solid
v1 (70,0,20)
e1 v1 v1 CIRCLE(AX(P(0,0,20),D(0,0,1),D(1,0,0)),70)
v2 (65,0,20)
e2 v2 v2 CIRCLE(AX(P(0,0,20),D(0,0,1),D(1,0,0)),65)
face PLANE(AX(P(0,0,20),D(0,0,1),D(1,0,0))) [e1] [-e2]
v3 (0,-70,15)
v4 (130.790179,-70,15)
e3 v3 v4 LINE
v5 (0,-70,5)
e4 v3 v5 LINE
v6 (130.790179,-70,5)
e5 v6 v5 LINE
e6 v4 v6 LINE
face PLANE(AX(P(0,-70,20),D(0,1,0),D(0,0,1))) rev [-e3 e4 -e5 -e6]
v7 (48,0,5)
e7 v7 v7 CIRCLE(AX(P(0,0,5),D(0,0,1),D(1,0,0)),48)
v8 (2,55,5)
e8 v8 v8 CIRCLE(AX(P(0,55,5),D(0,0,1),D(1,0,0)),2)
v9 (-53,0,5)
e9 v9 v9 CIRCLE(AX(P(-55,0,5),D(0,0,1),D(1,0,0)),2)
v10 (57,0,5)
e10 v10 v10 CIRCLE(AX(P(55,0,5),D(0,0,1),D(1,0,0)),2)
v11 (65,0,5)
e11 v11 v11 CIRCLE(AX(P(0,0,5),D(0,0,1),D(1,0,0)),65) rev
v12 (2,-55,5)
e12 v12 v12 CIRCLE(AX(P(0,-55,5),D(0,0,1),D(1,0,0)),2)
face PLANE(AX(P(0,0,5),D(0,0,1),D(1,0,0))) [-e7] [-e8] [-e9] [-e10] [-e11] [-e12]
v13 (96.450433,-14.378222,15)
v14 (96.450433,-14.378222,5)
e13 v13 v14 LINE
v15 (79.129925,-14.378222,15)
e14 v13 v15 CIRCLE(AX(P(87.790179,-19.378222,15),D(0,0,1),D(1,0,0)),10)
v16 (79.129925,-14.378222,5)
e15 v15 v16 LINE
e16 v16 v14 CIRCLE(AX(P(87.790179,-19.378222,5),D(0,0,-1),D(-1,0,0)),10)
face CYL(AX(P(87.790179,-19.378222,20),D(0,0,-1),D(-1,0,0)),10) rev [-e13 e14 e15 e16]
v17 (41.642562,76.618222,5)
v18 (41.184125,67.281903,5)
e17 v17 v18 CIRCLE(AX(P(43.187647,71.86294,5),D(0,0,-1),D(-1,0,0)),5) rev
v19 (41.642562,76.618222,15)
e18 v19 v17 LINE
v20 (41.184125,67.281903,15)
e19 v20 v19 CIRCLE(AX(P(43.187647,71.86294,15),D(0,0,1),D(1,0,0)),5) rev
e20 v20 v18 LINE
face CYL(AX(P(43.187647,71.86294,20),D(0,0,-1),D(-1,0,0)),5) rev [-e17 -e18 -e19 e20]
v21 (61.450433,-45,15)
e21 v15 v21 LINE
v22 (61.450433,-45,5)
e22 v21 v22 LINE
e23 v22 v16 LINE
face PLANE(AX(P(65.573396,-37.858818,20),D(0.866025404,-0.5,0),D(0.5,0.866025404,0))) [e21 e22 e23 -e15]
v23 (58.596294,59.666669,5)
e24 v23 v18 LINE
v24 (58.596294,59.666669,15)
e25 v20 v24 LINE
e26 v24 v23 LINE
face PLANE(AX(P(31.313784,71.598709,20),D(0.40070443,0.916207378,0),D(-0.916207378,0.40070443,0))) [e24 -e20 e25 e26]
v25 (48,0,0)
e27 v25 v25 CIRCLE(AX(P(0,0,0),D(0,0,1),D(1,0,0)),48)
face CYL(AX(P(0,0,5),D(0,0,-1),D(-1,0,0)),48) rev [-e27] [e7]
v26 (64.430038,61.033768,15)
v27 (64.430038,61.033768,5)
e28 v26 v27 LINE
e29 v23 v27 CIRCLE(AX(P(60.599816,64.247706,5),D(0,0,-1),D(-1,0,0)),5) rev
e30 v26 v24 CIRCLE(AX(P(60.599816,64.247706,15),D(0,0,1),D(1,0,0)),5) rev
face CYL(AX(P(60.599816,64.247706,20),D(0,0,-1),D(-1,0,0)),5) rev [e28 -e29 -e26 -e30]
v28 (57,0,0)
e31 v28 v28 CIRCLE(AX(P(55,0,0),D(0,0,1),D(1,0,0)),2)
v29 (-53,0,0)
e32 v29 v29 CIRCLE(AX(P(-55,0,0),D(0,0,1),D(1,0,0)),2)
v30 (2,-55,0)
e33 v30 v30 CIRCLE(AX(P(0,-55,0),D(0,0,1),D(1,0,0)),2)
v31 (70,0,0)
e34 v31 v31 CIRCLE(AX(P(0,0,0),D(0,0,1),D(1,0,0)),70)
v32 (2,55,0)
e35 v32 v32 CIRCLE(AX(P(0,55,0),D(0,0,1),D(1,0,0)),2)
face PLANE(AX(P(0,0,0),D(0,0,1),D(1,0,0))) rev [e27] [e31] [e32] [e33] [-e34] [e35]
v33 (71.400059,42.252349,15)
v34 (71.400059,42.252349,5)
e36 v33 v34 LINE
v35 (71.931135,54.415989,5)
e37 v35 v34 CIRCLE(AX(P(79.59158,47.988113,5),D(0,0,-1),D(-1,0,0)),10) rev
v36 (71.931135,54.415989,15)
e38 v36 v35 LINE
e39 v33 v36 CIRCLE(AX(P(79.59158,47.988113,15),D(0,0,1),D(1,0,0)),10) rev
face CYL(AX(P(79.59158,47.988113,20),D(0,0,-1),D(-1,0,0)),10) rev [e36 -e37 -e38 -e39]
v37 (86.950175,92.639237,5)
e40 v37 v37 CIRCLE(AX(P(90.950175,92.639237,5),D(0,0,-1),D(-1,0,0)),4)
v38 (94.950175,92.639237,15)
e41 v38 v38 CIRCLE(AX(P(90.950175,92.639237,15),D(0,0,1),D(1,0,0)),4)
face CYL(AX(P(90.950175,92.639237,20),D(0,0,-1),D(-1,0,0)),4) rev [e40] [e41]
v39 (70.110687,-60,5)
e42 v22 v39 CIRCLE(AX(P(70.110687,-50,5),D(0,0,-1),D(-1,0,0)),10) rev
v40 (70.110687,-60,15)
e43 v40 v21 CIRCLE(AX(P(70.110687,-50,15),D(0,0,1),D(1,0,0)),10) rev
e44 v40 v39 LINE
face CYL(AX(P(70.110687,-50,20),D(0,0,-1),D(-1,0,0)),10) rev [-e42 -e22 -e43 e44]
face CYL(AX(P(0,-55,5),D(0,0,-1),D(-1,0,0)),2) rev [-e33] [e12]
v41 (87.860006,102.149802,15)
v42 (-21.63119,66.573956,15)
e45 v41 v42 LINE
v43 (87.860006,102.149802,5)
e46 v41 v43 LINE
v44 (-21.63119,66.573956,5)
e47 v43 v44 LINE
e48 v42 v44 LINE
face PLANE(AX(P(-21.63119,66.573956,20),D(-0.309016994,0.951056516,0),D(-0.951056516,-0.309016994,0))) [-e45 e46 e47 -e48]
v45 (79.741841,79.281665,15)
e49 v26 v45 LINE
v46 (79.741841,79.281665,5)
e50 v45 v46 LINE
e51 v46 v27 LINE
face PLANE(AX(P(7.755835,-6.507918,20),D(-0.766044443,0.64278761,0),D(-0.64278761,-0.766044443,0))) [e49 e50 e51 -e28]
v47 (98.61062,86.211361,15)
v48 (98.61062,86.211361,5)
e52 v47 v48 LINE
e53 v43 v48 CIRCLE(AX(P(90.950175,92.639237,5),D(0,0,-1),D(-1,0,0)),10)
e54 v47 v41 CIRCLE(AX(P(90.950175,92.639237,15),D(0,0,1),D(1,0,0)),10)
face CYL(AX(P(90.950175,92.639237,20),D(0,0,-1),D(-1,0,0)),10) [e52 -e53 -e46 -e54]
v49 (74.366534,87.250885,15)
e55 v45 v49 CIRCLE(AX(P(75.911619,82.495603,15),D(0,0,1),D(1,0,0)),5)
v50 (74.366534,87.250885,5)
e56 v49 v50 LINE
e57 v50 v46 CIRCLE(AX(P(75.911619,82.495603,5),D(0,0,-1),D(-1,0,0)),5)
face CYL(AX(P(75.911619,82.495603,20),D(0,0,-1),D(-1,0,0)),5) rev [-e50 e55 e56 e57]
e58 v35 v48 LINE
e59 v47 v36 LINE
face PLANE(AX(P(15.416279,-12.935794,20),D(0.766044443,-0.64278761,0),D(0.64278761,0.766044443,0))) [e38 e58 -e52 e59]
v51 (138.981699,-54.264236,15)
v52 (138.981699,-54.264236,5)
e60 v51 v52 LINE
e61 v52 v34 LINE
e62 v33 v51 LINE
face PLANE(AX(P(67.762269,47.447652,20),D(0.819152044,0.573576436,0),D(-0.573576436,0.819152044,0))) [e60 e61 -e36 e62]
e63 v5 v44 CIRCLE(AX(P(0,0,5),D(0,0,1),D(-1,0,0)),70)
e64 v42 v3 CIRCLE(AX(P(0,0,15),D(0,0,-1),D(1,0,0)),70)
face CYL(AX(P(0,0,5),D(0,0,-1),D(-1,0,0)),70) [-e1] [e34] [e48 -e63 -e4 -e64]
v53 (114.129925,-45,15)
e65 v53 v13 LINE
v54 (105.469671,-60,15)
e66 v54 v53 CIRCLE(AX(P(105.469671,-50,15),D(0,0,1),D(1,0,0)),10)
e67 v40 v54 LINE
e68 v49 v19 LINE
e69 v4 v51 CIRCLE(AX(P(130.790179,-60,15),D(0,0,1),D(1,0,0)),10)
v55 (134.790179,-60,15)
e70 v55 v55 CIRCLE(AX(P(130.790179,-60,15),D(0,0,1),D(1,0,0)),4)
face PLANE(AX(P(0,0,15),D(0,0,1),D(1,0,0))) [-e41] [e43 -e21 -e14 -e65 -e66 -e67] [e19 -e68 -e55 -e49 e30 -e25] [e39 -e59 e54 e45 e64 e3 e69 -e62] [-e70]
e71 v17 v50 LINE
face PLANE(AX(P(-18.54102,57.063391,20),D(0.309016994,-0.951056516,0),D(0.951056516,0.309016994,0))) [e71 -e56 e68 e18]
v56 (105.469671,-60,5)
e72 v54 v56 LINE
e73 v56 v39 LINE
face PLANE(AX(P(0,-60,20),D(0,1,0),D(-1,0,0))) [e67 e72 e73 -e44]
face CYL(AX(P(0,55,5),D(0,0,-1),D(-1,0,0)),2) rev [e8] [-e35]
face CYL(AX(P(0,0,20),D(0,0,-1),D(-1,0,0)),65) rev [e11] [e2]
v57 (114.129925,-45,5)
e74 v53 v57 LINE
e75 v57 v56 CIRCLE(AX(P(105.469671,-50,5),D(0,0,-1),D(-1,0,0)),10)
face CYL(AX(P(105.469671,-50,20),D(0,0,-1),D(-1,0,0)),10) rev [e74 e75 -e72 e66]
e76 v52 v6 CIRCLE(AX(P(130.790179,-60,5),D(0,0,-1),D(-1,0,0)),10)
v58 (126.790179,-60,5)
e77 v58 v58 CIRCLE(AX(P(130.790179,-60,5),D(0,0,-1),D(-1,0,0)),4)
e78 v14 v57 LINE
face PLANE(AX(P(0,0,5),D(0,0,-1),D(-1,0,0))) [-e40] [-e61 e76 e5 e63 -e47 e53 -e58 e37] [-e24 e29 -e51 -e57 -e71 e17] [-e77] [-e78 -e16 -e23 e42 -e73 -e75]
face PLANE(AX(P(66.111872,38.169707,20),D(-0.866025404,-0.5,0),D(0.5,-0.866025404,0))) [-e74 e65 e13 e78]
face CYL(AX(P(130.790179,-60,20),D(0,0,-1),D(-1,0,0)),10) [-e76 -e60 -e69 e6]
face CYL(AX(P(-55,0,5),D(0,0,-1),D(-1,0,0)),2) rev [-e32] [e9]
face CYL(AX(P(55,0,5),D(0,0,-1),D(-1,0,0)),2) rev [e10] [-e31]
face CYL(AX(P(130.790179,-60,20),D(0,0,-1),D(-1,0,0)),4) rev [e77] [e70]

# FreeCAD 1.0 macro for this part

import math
import FreeCAD as App
import Part
import Sketcher

V = App.Vector
Q = App.Units.Quantity

doc = App.newDocument("Part")
params = doc.addObject("Spreadsheet::Sheet", "Params")
for row, (alias, value) in enumerate([
    ("sketch1_diameter", "140 mm"),
    ("sketch1_diameter2", "4 mm"),
    ("sketch1_diameter3", "96 mm"),
    ("pad1_length", "5 mm"),
    ("sketch2_diameter", "140 mm"),
    ("sketch2_diameter2", "130 mm"),
    ("pad2_length", "15 mm"),
    ("sketch3_diameter", "8 mm"),
    ("sketch3_radius", "70 mm"),
    ("sketch3_radius2", "10 mm"),
    ("sketch3_radius3", "5 mm"),
    ("pad3_length", "20 mm"),
    ("sketch4_radius", "70 mm"),
    ("pocket1_length", "5 mm"),
    ("sketch5_radius", "70 mm"),
    ("pocket2_length", "5 mm"),
], start=1):
    params.set(f"A{row}", alias)
    params.set(f"B{row}", "=" + value)
    params.setAlias(f"B{row}", alias)

body = doc.addObject("PartDesign::Body", "Body")

# Sketch on XY plane
sketch1 = body.newObject("Sketcher::SketchObject", "Sketch")
sketch1.AttachmentSupport = (doc.getObject("XY_Plane"), [""])
sketch1.MapMode = "FlatFace"
sketch1.addGeometry([
    Part.Circle(V(0, 0, 0), V(0, 0, 1), 70),  # 0
    Part.Circle(V(0, -55, 0), V(0, 0, 1), 2),  # 1
    Part.Circle(V(-55, 0, 0), V(0, 0, 1), 2),  # 2
    Part.Circle(V(0, 0, 0), V(0, 0, 1), 48),  # 3
    Part.Circle(V(55, 0, 0), V(0, 0, 1), 2),  # 4
    Part.Circle(V(0, 55, 0), V(0, 0, 1), 2),  # 5
], False)
sketch1.addConstraint([
    Sketcher.Constraint("Coincident", 0, 3, -1, 1),
    Sketcher.Constraint("Coincident", 3, 3, -1, 1),
    Sketcher.Constraint("Equal", 1, 2),
    Sketcher.Constraint("Equal", 2, 4),
    Sketcher.Constraint("Equal", 4, 5),
    Sketcher.Constraint("Symmetric", 2, 3, 4, 3, -1, 1),
    Sketcher.Constraint("Symmetric", 1, 3, 5, 3, -1, 1),
    Sketcher.Constraint("PointOnObject", 1, 3, -2),
    Sketcher.Constraint("PointOnObject", 2, 3, -1),
    Sketcher.Constraint("Diameter", 0, Q("140 mm")),
    Sketcher.Constraint("Diameter", 1, Q("4 mm")),
    Sketcher.Constraint("Diameter", 3, Q("96 mm")),
    Sketcher.Constraint("DistanceY", 1, 3, -1, 1, Q("55 mm")),
    Sketcher.Constraint("DistanceX", 2, 3, -1, 1, Q("55 mm")),
])
sketch1.setExpression("Constraints[9]", "Params.sketch1_diameter")
sketch1.setExpression("Constraints[10]", "Params.sketch1_diameter2")
sketch1.setExpression("Constraints[11]", "Params.sketch1_diameter3")
pad1 = body.newObject("PartDesign::Pad", "Pad")
pad1.Profile = sketch1
pad1.setExpression("Length", "Params.pad1_length")

# Sketch on XY plane
sketch2 = body.newObject("Sketcher::SketchObject", "Sketch001")
sketch2.AttachmentSupport = (doc.getObject("XY_Plane"), [""])
sketch2.MapMode = "FlatFace"
sketch2.AttachmentOffset = App.Placement(V(0, 0, 5), App.Rotation())
sketch2.addGeometry([
    Part.Circle(V(0, 0, 0), V(0, 0, 1), 70),
    Part.Circle(V(0, 0, 0), V(0, 0, 1), 65),
], False)
sketch2.addConstraint([
    Sketcher.Constraint("Coincident", 0, 3, -1, 1),
    Sketcher.Constraint("Coincident", 1, 3, -1, 1),
    Sketcher.Constraint("Diameter", 0, Q("140 mm")),
    Sketcher.Constraint("Diameter", 1, Q("130 mm")),
])
sketch2.setExpression("Constraints[2]", "Params.sketch2_diameter")
sketch2.setExpression("Constraints[3]", "Params.sketch2_diameter2")
pad2 = body.newObject("PartDesign::Pad", "Pad001")
pad2.Profile = sketch2
pad2.setExpression("Length", "Params.pad2_length")

# Sketch on XY plane
sketch3 = body.newObject("Sketcher::SketchObject", "Sketch002")
sketch3.AttachmentSupport = (doc.getObject("XY_Plane"), [""])
sketch3.MapMode = "FlatFace"
sketch3.addGeometry([
    Part.ArcOfCircle(Part.Circle(V(0, 0, 0), V(0, 0, 1), 70), math.radians(-90), math.radians(0)),  # 0
    Part.LineSegment(V(0, -70, 0), V(130.8, -70, 0)),  # 1
    Part.ArcOfCircle(Part.Circle(V(130.8, -60, 0), V(0, 0, 1), 10), math.radians(-90), math.radians(35)),  # 2
    Part.LineSegment(V(139, -54.3, 0), V(71.4, 42.3, 0)),  # 3
    Part.ArcOfCircle(Part.Circle(V(79.6, 48, 0), V(0, 0, 1), 10), math.radians(140), math.radians(215)),  # 4
    Part.LineSegment(V(71.9, 54.4, 0), V(98.6, 86.2, 0)),  # 5
    Part.ArcOfCircle(Part.Circle(V(91, 92.6, 0), V(0, 0, 1), 10), math.radians(-40), math.radians(108)),  # 6
    Part.LineSegment(V(87.9, 102.1, 0), V(-21.6, 66.6, 0)),  # 7
    Part.ArcOfCircle(Part.Circle(V(0, 0, 0), V(0, 0, 1), 70), math.radians(0), math.radians(108)),  # 8
    Part.ArcOfCircle(Part.Circle(V(105.5, -50, 0), V(0, 0, 1), 10), math.radians(-90), math.radians(30)),  # 9
    Part.LineSegment(V(105.5, -60, 0), V(70.1, -60, 0)),  # 10
    Part.ArcOfCircle(Part.Circle(V(70.1, -50, 0), V(0, 0, 1), 10), math.radians(150), math.radians(270)),  # 11
    Part.LineSegment(V(61.5, -45, 0), V(79.1, -14.4, 0)),  # 12
    Part.ArcOfCircle(Part.Circle(V(87.8, -19.4, 0), V(0, 0, 1), 10), math.radians(30), math.radians(150)),  # 13
    Part.LineSegment(V(96.5, -14.4, 0), V(114.1, -45, 0)),  # 14
    Part.Circle(V(130.8, -60, 0), V(0, 0, 1), 4),  # 15
    Part.ArcOfCircle(Part.Circle(V(43.2, 71.9, 0), V(0, 0, 1), 5), math.radians(108), math.radians(246)),  # 16
    Part.LineSegment(V(41.6, 76.6, 0), V(74.4, 87.3, 0)),  # 17
    Part.ArcOfCircle(Part.Circle(V(75.9, 82.5, 0), V(0, 0, 1), 5), math.radians(-40), math.radians(108)),  # 18
    Part.LineSegment(V(79.7, 79.3, 0), V(64.4, 61, 0)),  # 19
    Part.ArcOfCircle(Part.Circle(V(60.6, 64.2, 0), V(0, 0, 1), 5), math.radians(-114), math.radians(-40)),  # 20
    Part.LineSegment(V(58.6, 59.7, 0), V(41.2, 67.3, 0)),  # 21
    Part.Circle(V(91, 92.6, 0), V(0, 0, 1), 4),  # 22
], False)
sketch3.addConstraint([
    Sketcher.Constraint("Tangent", 0, 1, 1, 1),
    Sketcher.Constraint("Tangent", 1, 2, 2, 1),
    Sketcher.Constraint("Tangent", 2, 2, 3, 1),
    Sketcher.Constraint("Tangent", 3, 2, 4, 2),
    Sketcher.Constraint("Tangent", 4, 1, 5, 1),
    Sketcher.Constraint("Tangent", 5, 2, 6, 1),
    Sketcher.Constraint("Tangent", 6, 2, 7, 1),
    Sketcher.Constraint("Tangent", 7, 2, 8, 2),
    Sketcher.Constraint("Tangent", 8, 1, 0, 2),
    Sketcher.Constraint("Tangent", 9, 1, 10, 1),
    Sketcher.Constraint("Tangent", 10, 2, 11, 2),
    Sketcher.Constraint("Tangent", 11, 1, 12, 1),
    Sketcher.Constraint("Tangent", 12, 2, 13, 2),
    Sketcher.Constraint("Tangent", 13, 1, 14, 1),
    Sketcher.Constraint("Tangent", 14, 2, 9, 2),
    Sketcher.Constraint("Tangent", 16, 1, 17, 1),
    Sketcher.Constraint("Tangent", 17, 2, 18, 2),
    Sketcher.Constraint("Tangent", 18, 1, 19, 1),
    Sketcher.Constraint("Tangent", 19, 2, 20, 2),
    Sketcher.Constraint("Tangent", 20, 1, 21, 1),
    Sketcher.Constraint("Tangent", 21, 2, 16, 2),
    Sketcher.Constraint("Horizontal", 1),
    Sketcher.Constraint("Horizontal", 10),
    Sketcher.Constraint("Coincident", 0, 3, -1, 1),
    Sketcher.Constraint("Coincident", 15, 3, 2, 3),
    Sketcher.Constraint("Coincident", 22, 3, 6, 3),
    Sketcher.Constraint("Equal", 2, 4),
    Sketcher.Constraint("Equal", 4, 6),
    Sketcher.Constraint("Equal", 0, 8),
    Sketcher.Constraint("Equal", 6, 9),
    Sketcher.Constraint("Equal", 9, 11),
    Sketcher.Constraint("Equal", 11, 13),
    Sketcher.Constraint("Equal", 16, 18),
    Sketcher.Constraint("Equal", 18, 20),
    Sketcher.Constraint("Equal", 15, 22),
    Sketcher.Constraint("PointOnObject", 8, 1, -1),
    Sketcher.Constraint("Parallel", 7, 17),
    Sketcher.Constraint("Parallel", 5, 19),
    Sketcher.Constraint("Horizontal", 15, 3, 9, 1),
    Sketcher.Constraint("Horizontal", 12, 2, 13, 1),
    Sketcher.Constraint("Diameter", 15, Q("8 mm")),
    Sketcher.Constraint("Radius", 0, Q("70 mm")),
    Sketcher.Constraint("Radius", 2, Q("10 mm")),
    Sketcher.Constraint("Radius", 16, Q("5 mm")),
    Sketcher.Constraint("Angle", 3, Q("125 deg")),
    Sketcher.Constraint("Angle", 5, Q("50 deg")),
    Sketcher.Constraint("Angle", 7, Q("-162 deg")),
    Sketcher.Constraint("Angle", 12, Q("60 deg")),
    Sketcher.Constraint("DistanceX", 13, 3, 2, 3, Q("43 mm")),
    Sketcher.Constraint("DistanceX", 18, 3, 5, 2, Q("22.699001 mm")),
    Sketcher.Constraint("DistanceX", 1, 1, 1, 2, Q("130.790179 mm")),
    Sketcher.Constraint("DistanceX", 4, 3, 2, 3, Q("51.198599 mm")),
    Sketcher.Constraint("DistanceY", 18, 3, 6, 2, Q("19.654199 mm")),
    Sketcher.Constraint("DistanceY", 20, 1, 19, 2, Q("1.367099 mm")),
    Sketcher.Constraint("Distance", 17, Q("34.408021 mm")),
    Sketcher.Constraint("DistanceX", 10, 2, 10, 1, Q("35.358984 mm")),
])
sketch3.setExpression("Constraints[40]", "Params.sketch3_diameter")
sketch3.setExpression("Constraints[41]", "Params.sketch3_radius")
sketch3.setExpression("Constraints[42]", "Params.sketch3_radius2")
sketch3.setExpression("Constraints[43]", "Params.sketch3_radius3")
pad3 = body.newObject("PartDesign::Pad", "Pad002")
pad3.Profile = sketch3
pad3.setExpression("Length", "Params.pad3_length")

# Sketch on XY plane
sketch4 = body.newObject("Sketcher::SketchObject", "Sketch003")
sketch4.AttachmentSupport = (doc.getObject("XY_Plane"), [""])
sketch4.MapMode = "FlatFace"
sketch4.AttachmentOffset = App.Placement(V(0, 0, 15), App.Rotation())
sketch4.addGeometry([
    Part.LineSegment(V(117, 112, 0), V(-22, 67, 0)),
    Part.ArcOfCircle(Part.Circle(V(0, 0, 0), V(0, 0, 1), 70), math.radians(-90), math.radians(108)),
    Part.LineSegment(V(0, -70, 0), V(176, -70, 0)),
    Part.LineSegment(V(176, -70, 0), V(117, 112, 0)),
], False)
sketch4.addConstraint([
    Sketcher.Constraint("Tangent", 0, 2, 1, 2),
    Sketcher.Constraint("Tangent", 1, 1, 2, 1),
    Sketcher.Constraint("Coincident", 2, 2, 3, 1),
    Sketcher.Constraint("Coincident", 3, 2, 0, 1),
    Sketcher.Constraint("Horizontal", 2),
    Sketcher.Constraint("Coincident", 1, 3, -1, 1),
    Sketcher.Constraint("Perpendicular", 0, 3),
    Sketcher.Constraint("Radius", 1, Q("70 mm")),
    Sketcher.Constraint("Angle", 0, Q("-162 deg")),
    Sketcher.Constraint("DistanceX", 2, 1, 2, 2, Q("175.711739 mm")),
])
sketch4.setExpression("Constraints[7]", "Params.sketch4_radius")
pocket1 = body.newObject("PartDesign::Pocket", "Pocket")
pocket1.Profile = sketch4
pocket1.setExpression("Length", "Params.pocket1_length")
pocket1.Reversed = True

# Sketch on XY plane
sketch5 = body.newObject("Sketcher::SketchObject", "Sketch004")
sketch5.AttachmentSupport = (doc.getObject("XY_Plane"), [""])
sketch5.MapMode = "FlatFace"
sketch5.addGeometry([
    Part.LineSegment(V(172, -70, 0), V(0, -70, 0)),  # 0
    Part.ArcOfCircle(Part.Circle(V(0, 0, 0), V(0, 0, 1), 70), math.radians(-90), math.radians(111)),  # 1
    Part.LineSegment(V(-25, 65, 0), V(131, 126, 0)),  # 2
    Part.LineSegment(V(131, 126, 0), V(153, 115, 0)),  # 3
    Part.LineSegment(V(153, 115, 0), V(172, -70, 0)),  # 4
], False)
sketch5.addConstraint([
    Sketcher.Constraint("Tangent", 0, 2, 1, 1),
    Sketcher.Constraint("Tangent", 1, 2, 2, 1),
    Sketcher.Constraint("Coincident", 2, 2, 3, 1),
    Sketcher.Constraint("Coincident", 3, 2, 4, 1),
    Sketcher.Constraint("Coincident", 4, 2, 0, 1),
    Sketcher.Constraint("Horizontal", 0),
    Sketcher.Constraint("Coincident", 1, 3, -1, 1),
    Sketcher.Constraint("Radius", 1, Q("70 mm")),
    Sketcher.Constraint("DistanceX", 0, 2, 0, 1, Q("171.744819 mm")),
    Sketcher.Constraint("Distance", 3, Q("23.90768 mm")),
    Sketcher.Constraint("DistanceX", -1, 1, 2, 2, Q("131.339611 mm")),
    Sketcher.Constraint("DistanceY", -1, 1, 2, 2, Q("125.799171 mm")),
    Sketcher.Constraint("DistanceX", -1, 1, 3, 2, Q("152.584469 mm")),
])
sketch5.setExpression("Constraints[7]", "Params.sketch5_radius")
pocket2 = body.newObject("PartDesign::Pocket", "Pocket001")
pocket2.Profile = sketch5
pocket2.setExpression("Length", "Params.pocket2_length")
pocket2.Reversed = True

doc.recompute()
